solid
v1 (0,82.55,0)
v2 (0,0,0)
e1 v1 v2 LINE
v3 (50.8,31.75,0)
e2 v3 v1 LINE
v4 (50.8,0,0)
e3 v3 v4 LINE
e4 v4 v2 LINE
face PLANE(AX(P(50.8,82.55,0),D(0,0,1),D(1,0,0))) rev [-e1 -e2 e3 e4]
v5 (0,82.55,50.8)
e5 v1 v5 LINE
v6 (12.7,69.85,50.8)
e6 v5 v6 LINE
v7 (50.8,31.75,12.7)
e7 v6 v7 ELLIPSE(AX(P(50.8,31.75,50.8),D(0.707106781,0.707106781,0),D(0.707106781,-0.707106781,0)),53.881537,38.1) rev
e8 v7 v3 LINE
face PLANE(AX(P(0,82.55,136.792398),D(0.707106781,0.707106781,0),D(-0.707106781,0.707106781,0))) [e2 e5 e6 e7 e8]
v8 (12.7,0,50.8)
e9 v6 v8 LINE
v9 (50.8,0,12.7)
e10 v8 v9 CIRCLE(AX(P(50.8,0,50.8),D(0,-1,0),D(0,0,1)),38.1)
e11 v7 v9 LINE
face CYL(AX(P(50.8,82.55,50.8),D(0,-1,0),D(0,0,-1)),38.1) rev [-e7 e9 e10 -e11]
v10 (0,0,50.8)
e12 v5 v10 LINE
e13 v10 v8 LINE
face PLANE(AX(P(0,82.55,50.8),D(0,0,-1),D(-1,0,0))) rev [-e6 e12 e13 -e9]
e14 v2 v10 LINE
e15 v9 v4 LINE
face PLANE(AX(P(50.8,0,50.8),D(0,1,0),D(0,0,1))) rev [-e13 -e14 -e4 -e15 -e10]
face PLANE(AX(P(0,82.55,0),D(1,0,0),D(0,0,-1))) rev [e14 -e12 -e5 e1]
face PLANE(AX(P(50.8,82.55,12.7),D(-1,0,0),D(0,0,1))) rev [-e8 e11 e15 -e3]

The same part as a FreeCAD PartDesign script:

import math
import FreeCAD as App
import Part
import Sketcher

V = App.Vector
Q = App.Units.Quantity


def add_polygon(sketch, points):
    """Adds a closed chain of lines whose ends are joined by coincident constraints."""
    first, n = sketch.GeometryCount, len(points)
    for a, b in zip(points, points[1:] + points[:1]):
        sketch.addGeometry(Part.LineSegment(App.Vector(*a, 0), App.Vector(*b, 0)), False)
    for i in range(n):
        sketch.addConstraint(Sketcher.Constraint("Coincident", first + i, 2, first + (i + 1) % n, 1))

doc = App.newDocument("Part")
body = doc.addObject("PartDesign::Body", "Body")

sketch1 = body.newObject("Sketcher::SketchObject", "Sketch")
sketch1.AttachmentSupport = (doc.getObject("XZ_Plane"), [""])
sketch1.MapMode = "FlatFace"
sketch1.addGeometry([
    Part.LineSegment(V(0, 0, 0), V(0, 51, 0)),
    Part.LineSegment(V(0, 51, 0), V(13, 51, 0)),
    Part.ArcOfCircle(Part.Circle(V(51, 51, 0), V(0, 0, 1), 38), math.radians(-180), math.radians(-90)),
    Part.LineSegment(V(51, 13, 0), V(51, 0, 0)),
    Part.LineSegment(V(51, 0, 0), V(0, 0, 0)),
], False)
sketch1.addConstraint([
    Sketcher.Constraint("Coincident", 0, 2, 1, 1),
    Sketcher.Constraint("Coincident", 1, 2, 2, 1),
    Sketcher.Constraint("Coincident", 2, 2, 3, 1),
    Sketcher.Constraint("Coincident", 3, 2, 4, 1),
    Sketcher.Constraint("Coincident", 4, 2, 0, 1),
    Sketcher.Constraint("Vertical", 0),
    Sketcher.Constraint("Horizontal", 1),
    Sketcher.Constraint("Vertical", 3),
    Sketcher.Constraint("Horizontal", 4),
    Sketcher.Constraint("Coincident", 4, 2, -1, 1),
    Sketcher.Constraint("Horizontal", 2, 3, 0, 2),
    Sketcher.Constraint("Equal", 4, 0),
    Sketcher.Constraint("Equal", 1, 3),
    Sketcher.Constraint("Radius", 2, Q("1.5 in")),
    Sketcher.Constraint("DistanceX", 4, 2, 4, 1, Q("2 in")),
])
pad1 = body.newObject("PartDesign::Pad", "Pad")
pad1.Profile = sketch1
pad1.Length = Q("3.25 in")
pad1.Reversed = True

sketch2 = body.newObject("Sketcher::SketchObject", "Sketch001")
sketch2.AttachmentSupport = (doc.getObject("XY_Plane"), [""])
sketch2.MapMode = "FlatFace"
add_polygon(sketch2, [(-144, 227), (195, -112), (483, 176), (144, 515)])
sketch2.addConstraint([
    Sketcher.Constraint("Perpendicular", 0, 1),
    Sketcher.Constraint("Perpendicular", 1, 2),
    Sketcher.Constraint("Perpendicular", 2, 3),
    Sketcher.Constraint("Angle", 0, Q("-45 deg")),
    Sketcher.Constraint("DistanceX", 2, 2, 0, 2, Q("2 in")),
    Sketcher.Constraint("DistanceX", -1, 1, 0, 2, Q("194.948728 mm")),
    Sketcher.Constraint("DistanceY", 0, 2, -1, 1, Q("112.398728 mm")),
    Sketcher.Constraint("DistanceY", -1, 1, 1, 2, Q("175.898728 mm")),
])
pocket1 = body.newObject("PartDesign::Pocket", "Pocket")
pocket1.Profile = sketch2
pocket1.Type = "ThroughAll"
pocket1.Midplane = True

doc.recompute()
